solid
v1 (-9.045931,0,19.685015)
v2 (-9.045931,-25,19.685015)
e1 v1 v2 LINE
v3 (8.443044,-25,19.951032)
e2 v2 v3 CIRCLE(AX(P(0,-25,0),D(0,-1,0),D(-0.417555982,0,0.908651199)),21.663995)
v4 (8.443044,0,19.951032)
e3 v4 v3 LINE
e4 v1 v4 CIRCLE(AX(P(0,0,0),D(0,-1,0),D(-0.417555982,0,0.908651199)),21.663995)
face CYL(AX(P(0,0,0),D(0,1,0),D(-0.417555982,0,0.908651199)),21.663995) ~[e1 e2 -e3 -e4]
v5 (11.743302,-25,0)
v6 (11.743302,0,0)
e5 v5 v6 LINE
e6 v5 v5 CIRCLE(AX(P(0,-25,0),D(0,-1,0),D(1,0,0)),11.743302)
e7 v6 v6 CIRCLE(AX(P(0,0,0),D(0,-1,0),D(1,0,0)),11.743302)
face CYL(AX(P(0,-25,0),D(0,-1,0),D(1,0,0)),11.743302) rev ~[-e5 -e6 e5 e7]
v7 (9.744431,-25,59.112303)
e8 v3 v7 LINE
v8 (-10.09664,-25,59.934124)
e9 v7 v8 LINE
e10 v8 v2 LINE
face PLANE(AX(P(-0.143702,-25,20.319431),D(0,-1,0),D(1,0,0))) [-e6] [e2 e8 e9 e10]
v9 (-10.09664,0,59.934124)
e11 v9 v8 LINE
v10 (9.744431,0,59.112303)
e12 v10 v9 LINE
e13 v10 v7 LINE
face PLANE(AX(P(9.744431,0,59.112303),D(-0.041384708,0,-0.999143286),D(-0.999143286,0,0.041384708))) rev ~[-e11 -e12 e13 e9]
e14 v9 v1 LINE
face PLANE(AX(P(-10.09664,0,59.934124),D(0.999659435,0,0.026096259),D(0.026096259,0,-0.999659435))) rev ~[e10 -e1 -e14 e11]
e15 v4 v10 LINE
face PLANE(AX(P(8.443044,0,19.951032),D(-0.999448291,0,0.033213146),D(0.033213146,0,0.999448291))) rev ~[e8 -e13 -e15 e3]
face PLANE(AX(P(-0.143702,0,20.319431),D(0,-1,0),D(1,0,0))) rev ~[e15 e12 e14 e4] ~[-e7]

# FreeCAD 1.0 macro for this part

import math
import FreeCAD as App
import Part
import Sketcher
Q = App.Units.Quantity

doc = App.newDocument("Part")
body = doc.addObject("PartDesign::Body", "Body")

sketch1 = body.newObject("Sketcher::SketchObject", "Sketch")
sketch1.AttachmentSupport = (doc.getObject("XZ_Plane"), [""])
sketch1.MapMode = "FlatFace"
sketch1.addGeometry([
    Part.LineSegment(App.Vector(-10, 60, 0), App.Vector(-9, 20, 0)),
    Part.ArcOfCircle(Part.Circle(App.Vector(0, 0, 0), App.Vector(0, 0, 1), 22), math.radians(115), math.radians(427)),
    Part.LineSegment(App.Vector(8, 20, 0), App.Vector(10, 59, 0)),
    Part.LineSegment(App.Vector(10, 59, 0), App.Vector(-10, 60, 0)),
], False)
sketch1.addConstraint([
    Sketcher.Constraint("Coincident", 0, 2, 1, 1),
    Sketcher.Constraint("Coincident", 1, 2, 2, 1),
    Sketcher.Constraint("Coincident", 2, 2, 3, 1),
    Sketcher.Constraint("Coincident", 3, 2, 0, 1),
    Sketcher.Constraint("Coincident", 1, 3, -1, 1),
    Sketcher.Constraint("Radius", 1, Q("21.663995 mm")),
    Sketcher.Constraint("Distance", 0, Q("40.262821 mm")),
    Sketcher.Constraint("Distance", 2, Q("39.182889 mm")),
    Sketcher.Constraint("DistanceX", 0, 2, -1, 1, Q("9.045931 mm")),
    Sketcher.Constraint("DistanceX", -1, 1, 2, 2, Q("9.744431 mm")),
    Sketcher.Constraint("DistanceX", 3, 2, -1, 1, Q("10.09664 mm")),
    Sketcher.Constraint("DistanceY", 1, 3, 1, 2, Q("19.951032 mm")),
])
pad1 = body.newObject("PartDesign::Pad", "Pad")
pad1.Profile = sketch1
pad1.Length = 25

sketch2 = body.newObject("Sketcher::SketchObject", "Sketch001")
sketch2.AttachmentSupport = (doc.getObject("XZ_Plane"), [""])
sketch2.MapMode = "FlatFace"
sketch2.AttachmentOffset = App.Placement(App.Vector(0, 0, 25), App.Rotation())
sketch2.addGeometry(Part.Circle(App.Vector(0, 0, 0), App.Vector(0, 0, 1), 12), False)
sketch2.addConstraint([
    Sketcher.Constraint("Coincident", 0, 3, -1, 1),
    Sketcher.Constraint("Diameter", 0, Q("23.486604 mm")),
])
pocket1 = body.newObject("PartDesign::Pocket", "Pocket")
pocket1.Profile = sketch2
pocket1.Type = "ThroughAll"

doc.recompute()
